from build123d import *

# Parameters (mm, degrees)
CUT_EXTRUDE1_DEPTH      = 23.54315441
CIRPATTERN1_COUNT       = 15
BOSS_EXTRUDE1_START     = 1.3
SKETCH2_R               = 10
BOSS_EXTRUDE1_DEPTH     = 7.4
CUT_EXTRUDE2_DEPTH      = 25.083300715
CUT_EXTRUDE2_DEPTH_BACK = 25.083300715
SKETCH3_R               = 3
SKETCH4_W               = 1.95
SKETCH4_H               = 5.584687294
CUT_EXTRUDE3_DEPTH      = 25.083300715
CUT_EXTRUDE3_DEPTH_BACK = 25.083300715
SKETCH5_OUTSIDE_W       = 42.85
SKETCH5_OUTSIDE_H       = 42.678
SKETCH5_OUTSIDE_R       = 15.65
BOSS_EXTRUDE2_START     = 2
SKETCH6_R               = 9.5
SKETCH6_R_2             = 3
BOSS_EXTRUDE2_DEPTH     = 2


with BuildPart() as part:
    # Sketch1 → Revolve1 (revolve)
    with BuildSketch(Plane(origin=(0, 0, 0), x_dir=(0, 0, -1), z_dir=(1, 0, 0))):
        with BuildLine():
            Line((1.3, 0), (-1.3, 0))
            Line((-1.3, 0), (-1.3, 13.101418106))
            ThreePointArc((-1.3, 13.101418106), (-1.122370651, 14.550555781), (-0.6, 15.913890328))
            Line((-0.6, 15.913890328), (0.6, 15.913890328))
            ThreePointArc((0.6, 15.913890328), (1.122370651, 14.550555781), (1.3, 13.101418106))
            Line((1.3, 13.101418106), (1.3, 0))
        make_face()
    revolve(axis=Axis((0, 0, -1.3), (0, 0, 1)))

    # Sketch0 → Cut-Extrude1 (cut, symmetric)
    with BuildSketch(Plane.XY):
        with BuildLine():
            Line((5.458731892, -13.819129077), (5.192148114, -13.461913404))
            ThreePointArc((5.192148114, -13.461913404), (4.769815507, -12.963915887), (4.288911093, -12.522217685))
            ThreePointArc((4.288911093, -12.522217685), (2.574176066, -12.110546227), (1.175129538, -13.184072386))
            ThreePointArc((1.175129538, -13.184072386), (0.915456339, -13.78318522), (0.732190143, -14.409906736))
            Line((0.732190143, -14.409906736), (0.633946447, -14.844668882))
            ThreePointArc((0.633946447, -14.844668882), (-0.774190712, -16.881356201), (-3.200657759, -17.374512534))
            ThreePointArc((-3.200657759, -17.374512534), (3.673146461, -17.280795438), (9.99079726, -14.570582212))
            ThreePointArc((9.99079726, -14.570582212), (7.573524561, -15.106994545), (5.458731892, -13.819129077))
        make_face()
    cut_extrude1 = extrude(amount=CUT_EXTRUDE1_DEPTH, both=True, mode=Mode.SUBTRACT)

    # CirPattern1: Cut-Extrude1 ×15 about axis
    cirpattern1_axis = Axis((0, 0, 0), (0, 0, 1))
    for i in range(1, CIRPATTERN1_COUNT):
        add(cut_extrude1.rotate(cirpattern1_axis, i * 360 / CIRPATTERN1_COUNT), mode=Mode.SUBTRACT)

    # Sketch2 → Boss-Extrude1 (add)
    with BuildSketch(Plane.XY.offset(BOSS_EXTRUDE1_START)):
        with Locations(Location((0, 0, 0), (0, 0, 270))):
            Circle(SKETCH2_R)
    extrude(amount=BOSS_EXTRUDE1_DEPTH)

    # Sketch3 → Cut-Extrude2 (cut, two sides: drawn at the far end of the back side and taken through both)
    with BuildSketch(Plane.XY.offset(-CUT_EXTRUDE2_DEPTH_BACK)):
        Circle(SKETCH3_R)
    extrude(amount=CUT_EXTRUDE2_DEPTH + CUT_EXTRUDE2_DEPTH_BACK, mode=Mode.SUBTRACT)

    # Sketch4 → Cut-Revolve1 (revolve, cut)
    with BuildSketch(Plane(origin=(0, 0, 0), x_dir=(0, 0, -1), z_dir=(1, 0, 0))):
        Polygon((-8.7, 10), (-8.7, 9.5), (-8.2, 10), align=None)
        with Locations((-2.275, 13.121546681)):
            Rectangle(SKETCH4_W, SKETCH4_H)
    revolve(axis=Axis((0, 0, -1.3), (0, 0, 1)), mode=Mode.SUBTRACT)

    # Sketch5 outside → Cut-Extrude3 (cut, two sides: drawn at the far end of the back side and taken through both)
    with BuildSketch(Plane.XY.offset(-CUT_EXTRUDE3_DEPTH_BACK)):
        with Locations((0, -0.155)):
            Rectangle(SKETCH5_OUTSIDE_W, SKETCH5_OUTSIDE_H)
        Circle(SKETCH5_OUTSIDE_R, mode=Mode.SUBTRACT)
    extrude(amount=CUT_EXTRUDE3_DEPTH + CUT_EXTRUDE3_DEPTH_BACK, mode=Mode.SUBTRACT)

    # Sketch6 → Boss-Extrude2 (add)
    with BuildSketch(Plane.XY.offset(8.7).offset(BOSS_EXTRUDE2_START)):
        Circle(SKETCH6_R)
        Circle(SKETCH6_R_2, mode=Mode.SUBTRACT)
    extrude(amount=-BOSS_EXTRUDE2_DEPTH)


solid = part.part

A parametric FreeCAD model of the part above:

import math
import FreeCAD as App
import Part
import Sketcher
Q = App.Units.Quantity

doc = App.newDocument("Part")
params = doc.addObject("Spreadsheet::Sheet", "Params")
for row, (alias, value) in enumerate([
    ("sketch1_radius", "6 mm"),
    ("sketch1_height", "2.6 mm"),
    ("sketch1_height2", "1.2 mm"),
    ("revolution_angle", "360 deg"),
    ("pocket1_length", "47.086309 mm"),
    ("sketch3_diameter", "20 mm"),
    ("pad1_length", "7.4 mm"),
    ("sketch4_diameter", "6 mm"),
    ("sketch5_width", "0.5 mm"),
    ("sketch5_height", "1.95 mm"),
    ("groove_angle", "360 deg"),
    ("sketch6_diameter", "31.3 mm"),
    ("sketch6_width", "42.85 mm"),
    ("sketch7_diameter", "19 mm"),
    ("sketch7_diameter2", "6 mm"),
    ("pad2_length", "2 mm"),
], start=1):
    params.set(f"A{row}", alias)
    params.set(f"B{row}", "=" + value)
    params.setAlias(f"B{row}", alias)

body = doc.addObject("PartDesign::Body", "Body")

# Sketch on YZ plane
sketch1 = body.newObject("Sketcher::SketchObject", "Sketch")
sketch1.AttachmentSupport = (doc.getObject("YZ_Plane"), [""])
sketch1.MapMode = "FlatFace"
sketch1.addGeometry(Part.LineSegment(App.Vector(0, 1.3, 0), App.Vector(0, -1.3, 0)), False)
sketch1.addGeometry(Part.LineSegment(App.Vector(0, -1.3, 0), App.Vector(13.101418, -1.3, 0)), False)
sketch1.addGeometry(Part.ArcOfCircle(Part.Circle(App.Vector(13.101418, 4.7, 0), App.Vector(0, 0, 1), 6), math.radians(-90), math.radians(-62.047113)), False)
sketch1.addGeometry(Part.LineSegment(App.Vector(15.91389, -0.6, 0), App.Vector(15.91389, 0.6, 0)), False)
sketch1.addGeometry(Part.ArcOfCircle(Part.Circle(App.Vector(13.101418, -4.7, 0), App.Vector(0, 0, 1), 6), math.radians(62.047113), math.radians(90)), False)
sketch1.addGeometry(Part.LineSegment(App.Vector(13.101418, 1.3, 0), App.Vector(0, 1.3, 0)), False)
sketch1.addConstraint(Sketcher.Constraint("Coincident", 0, 2, 1, 1))
sketch1.addConstraint(Sketcher.Constraint("Tangent", 1, 2, 2, 1))
sketch1.addConstraint(Sketcher.Constraint("Coincident", 2, 2, 3, 1))
sketch1.addConstraint(Sketcher.Constraint("Coincident", 3, 2, 4, 1))
sketch1.addConstraint(Sketcher.Constraint("Tangent", 4, 2, 5, 1))
sketch1.addConstraint(Sketcher.Constraint("Coincident", 5, 2, 0, 1))
sketch1.addConstraint(Sketcher.Constraint("Vertical", 0))
sketch1.addConstraint(Sketcher.Constraint("Horizontal", 1))
sketch1.addConstraint(Sketcher.Constraint("Vertical", 3))
sketch1.addConstraint(Sketcher.Constraint("Horizontal", 5))
sketch1.addConstraint(Sketcher.Constraint("Equal", 2, 4))
sketch1.addConstraint(Sketcher.Constraint("Symmetric", 0, 2, 5, 2, -1, 1))
sketch1.addConstraint(Sketcher.Constraint("Vertical", 2, 3, 4, 3))
sketch1.addConstraint(Sketcher.Constraint("Radius", 2, Q("6 mm")))
sketch1.addConstraint(Sketcher.Constraint("DistanceY", 0, 2, 0, 1, Q("2.6 mm")))
sketch1.addConstraint(Sketcher.Constraint("DistanceY", 3, 1, 3, 2, Q("1.2 mm")))
sketch1.addConstraint(Sketcher.Constraint("DistanceX", 1, 1, 1, 2, Q("13.101418 mm")))
sketch1.setExpression("Constraints[13]", "Params.sketch1_radius")
sketch1.setExpression("Constraints[14]", "Params.sketch1_height")
sketch1.setExpression("Constraints[15]", "Params.sketch1_height2")
revolution = body.newObject("PartDesign::Revolution", "Revolution")
revolution.Profile = sketch1
revolution.ReferenceAxis = (sketch1, ["V_Axis"])
revolution.setExpression("Angle", "Params.revolution_angle")

# Sketch on XY plane
sketch2 = body.newObject("Sketcher::SketchObject", "Sketch001")
sketch2.AttachmentSupport = (doc.getObject("XY_Plane"), [""])
sketch2.MapMode = "FlatFace"
sketch2.addGeometry(Part.LineSegment(App.Vector(5.458732, -13.819129, 0), App.Vector(5.192148, -13.461913, 0)), False)
sketch2.addGeometry(Part.ArcOfCircle(Part.Circle(App.Vector(0.986175, -16.600757, 0), App.Vector(0, 0, 1), 5.2481), math.radians(36.733333), math.radians(51)), False)
sketch2.addGeometry(Part.ArcOfCircle(Part.Circle(App.Vector(3, -14.11389, 0), App.Vector(0, 0, 1), 2.0481), math.radians(51), math.radians(153)), False)
sketch2.addGeometry(Part.ArcOfCircle(Part.Circle(App.Vector(5.851221, -15.56666, 0), App.Vector(0, 0, 1), 5.2481), math.radians(153), math.radians(167.266667)), False)
sketch2.addGeometry(Part.LineSegment(App.Vector(0.73219, -14.409907, 0), App.Vector(0.633946, -14.844669, 0)), False)
sketch2.addGeometry(Part.ArcOfCircle(Part.Circle(App.Vector(-2.6, -14.11389, 0), App.Vector(0, 0, 1), 3.315486), math.radians(-100.437761), math.radians(-12.733333)), False)
sketch2.addGeometry(Part.ArcOfCircle(Part.Circle(App.Vector(0, 0, 0), App.Vector(0, 0, 1), 17.666859), math.radians(-100.437761), math.radians(-55.562239)), False)
sketch2.addGeometry(Part.ArcOfCircle(Part.Circle(App.Vector(8.115855, -11.836165, 0), App.Vector(0, 0, 1), 3.315486), math.radians(-143.266667), math.radians(-55.562239)), False)
sketch2.addConstraint(Sketcher.Constraint("Tangent", 0, 2, 1, 1))
sketch2.addConstraint(Sketcher.Constraint("Tangent", 1, 2, 2, 1))
sketch2.addConstraint(Sketcher.Constraint("Tangent", 2, 2, 3, 1))
sketch2.addConstraint(Sketcher.Constraint("Tangent", 3, 2, 4, 1))
sketch2.addConstraint(Sketcher.Constraint("Tangent", 4, 2, 5, 2))
sketch2.addConstraint(Sketcher.Constraint("Tangent", 5, 1, 6, 1))
sketch2.addConstraint(Sketcher.Constraint("Tangent", 6, 2, 7, 2))
sketch2.addConstraint(Sketcher.Constraint("Tangent", 7, 1, 0, 1))
sketch2.addConstraint(Sketcher.Constraint("Coincident", 6, 3, -1, 1))
sketch2.addConstraint(Sketcher.Constraint("Equal", 1, 3))
sketch2.addConstraint(Sketcher.Constraint("Equal", 5, 7))
sketch2.addConstraint(Sketcher.Constraint("Horizontal", 2, 3, 5, 3))
sketch2.addConstraint(Sketcher.Constraint("Equal", 0, 4))
sketch2.addConstraint(Sketcher.Constraint("DistanceX", -1, 1, 2, 3, Q("3 mm")))
sketch2.addConstraint(Sketcher.Constraint("DistanceX", 5, 3, -1, 1, Q("2.6 mm")))
sketch2.addConstraint(Sketcher.Constraint("Radius", 1, Q("5.2481 mm")))
sketch2.addConstraint(Sketcher.Constraint("Radius", 2, Q("2.0481 mm")))
sketch2.addConstraint(Sketcher.Constraint("Radius", 6, Q("17.666859 mm")))
sketch2.addConstraint(Sketcher.Constraint("Radius", 5, Q("3.315486 mm")))
sketch2.addConstraint(Sketcher.Constraint("DistanceX", -1, 1, 3, 3, Q("5.851221 mm")))
sketch2.addConstraint(Sketcher.Constraint("DistanceX", -1, 1, 0, 2, Q("5.192148 mm")))
pocket1 = body.newObject("PartDesign::Pocket", "Pocket")
pocket1.Profile = sketch2
pocket1.setExpression("Length", "Params.pocket1_length")
pocket1.Midplane = True
doc.recompute()

polarpattern = body.newObject("PartDesign::PolarPattern", "PolarPattern")
polarpattern.Originals = [pocket1]
polarpattern.Axis = (doc.getObject("Z_Axis"), [""])
polarpattern.Angle = 360
polarpattern.Occurrences = 15
body.Tip = polarpattern

# Sketch on XY plane
sketch3 = body.newObject("Sketcher::SketchObject", "Sketch002")
sketch3.AttachmentSupport = (doc.getObject("XY_Plane"), [""])
sketch3.MapMode = "FlatFace"
sketch3.AttachmentOffset = App.Placement(App.Vector(0, 0, 1.3), App.Rotation())
sketch3.addGeometry(Part.Circle(App.Vector(0, 0, 0), App.Vector(0, 0, 1), 10), False)
sketch3.addConstraint(Sketcher.Constraint("Coincident", 0, 3, -1, 1))
sketch3.addConstraint(Sketcher.Constraint("Diameter", 0, Q("20 mm")))
sketch3.setExpression("Constraints[1]", "Params.sketch3_diameter")
pad1 = body.newObject("PartDesign::Pad", "Pad")
pad1.Profile = sketch3
pad1.setExpression("Length", "Params.pad1_length")

# Sketch on XY plane
sketch4 = body.newObject("Sketcher::SketchObject", "Sketch003")
sketch4.AttachmentSupport = (doc.getObject("XY_Plane"), [""])
sketch4.MapMode = "FlatFace"
sketch4.addGeometry(Part.Circle(App.Vector(0, 0, 0), App.Vector(0, 0, 1), 3), False)
sketch4.addConstraint(Sketcher.Constraint("Coincident", 0, 3, -1, 1))
sketch4.addConstraint(Sketcher.Constraint("Diameter", 0, Q("6 mm")))
sketch4.setExpression("Constraints[1]", "Params.sketch4_diameter")
pocket2 = body.newObject("PartDesign::Pocket", "Pocket001")
pocket2.Profile = sketch4
pocket2.Type = "ThroughAll"
pocket2.Midplane = True

# Sketch on YZ plane
sketch5 = body.newObject("Sketcher::SketchObject", "Sketch004")
sketch5.AttachmentSupport = (doc.getObject("YZ_Plane"), [""])
sketch5.MapMode = "FlatFace"
sketch5.addGeometry(Part.LineSegment(App.Vector(10, 8.7, 0), App.Vector(9.5, 8.7, 0)), False)
sketch5.addGeometry(Part.LineSegment(App.Vector(9.5, 8.7, 0), App.Vector(10, 8.2, 0)), False)
sketch5.addGeometry(Part.LineSegment(App.Vector(10, 8.2, 0), App.Vector(10, 8.7, 0)), False)
sketch5.addGeometry(Part.LineSegment(App.Vector(15.91389, 3.25, 0), App.Vector(10.329203, 3.25, 0)), False)
sketch5.addGeometry(Part.LineSegment(App.Vector(10.329203, 3.25, 0), App.Vector(10.329203, 1.3, 0)), False)
sketch5.addGeometry(Part.LineSegment(App.Vector(10.329203, 1.3, 0), App.Vector(15.91389, 1.3, 0)), False)
sketch5.addGeometry(Part.LineSegment(App.Vector(15.91389, 1.3, 0), App.Vector(15.91389, 3.25, 0)), False)
sketch5.addConstraint(Sketcher.Constraint("Coincident", 0, 2, 1, 1))
sketch5.addConstraint(Sketcher.Constraint("Coincident", 1, 2, 2, 1))
sketch5.addConstraint(Sketcher.Constraint("Coincident", 2, 2, 0, 1))
sketch5.addConstraint(Sketcher.Constraint("Coincident", 3, 2, 4, 1))
sketch5.addConstraint(Sketcher.Constraint("Coincident", 4, 2, 5, 1))
sketch5.addConstraint(Sketcher.Constraint("Coincident", 5, 2, 6, 1))
sketch5.addConstraint(Sketcher.Constraint("Coincident", 6, 2, 3, 1))
sketch5.addConstraint(Sketcher.Constraint("Horizontal", 0))
sketch5.addConstraint(Sketcher.Constraint("Vertical", 2))
sketch5.addConstraint(Sketcher.Constraint("Horizontal", 3))
sketch5.addConstraint(Sketcher.Constraint("Vertical", 4))
sketch5.addConstraint(Sketcher.Constraint("Horizontal", 5))
sketch5.addConstraint(Sketcher.Constraint("Vertical", 6))
sketch5.addConstraint(Sketcher.Constraint("Equal", 0, 2))
sketch5.addConstraint(Sketcher.Constraint("DistanceX", 0, 2, 0, 1, Q("0.5 mm")))
sketch5.addConstraint(Sketcher.Constraint("DistanceX", -1, 1, 1, 2, Q("10 mm")))
sketch5.addConstraint(Sketcher.Constraint("DistanceY", 4, 2, 4, 1, Q("1.95 mm")))
sketch5.addConstraint(Sketcher.Constraint("DistanceY", -1, 1, 0, 2, Q("8.7 mm")))
sketch5.addConstraint(Sketcher.Constraint("DistanceY", -1, 1, 4, 2, Q("1.3 mm")))
sketch5.addConstraint(Sketcher.Constraint("DistanceX", 3, 2, 3, 1, Q("5.584687 mm")))
sketch5.addConstraint(Sketcher.Constraint("DistanceX", -1, 1, 5, 2, Q("15.91389 mm")))
sketch5.setExpression("Constraints[14]", "Params.sketch5_width")
sketch5.setExpression("Constraints[16]", "Params.sketch5_height")
groove = body.newObject("PartDesign::Groove", "Groove")
groove.Profile = sketch5
groove.ReferenceAxis = (sketch5, ["V_Axis"])
groove.setExpression("Angle", "Params.groove_angle")

# Sketch on XY plane
sketch6 = body.newObject("Sketcher::SketchObject", "Sketch005")
sketch6.AttachmentSupport = (doc.getObject("XY_Plane"), [""])
sketch6.MapMode = "FlatFace"
sketch6.addGeometry(Part.LineSegment(App.Vector(-21.425, 21.184, 0), App.Vector(-21.425, -21.494, 0)), False)
sketch6.addGeometry(Part.LineSegment(App.Vector(-21.425, -21.494, 0), App.Vector(21.425, -21.494, 0)), False)
sketch6.addGeometry(Part.LineSegment(App.Vector(21.425, -21.494, 0), App.Vector(21.425, 21.184, 0)), False)
sketch6.addGeometry(Part.LineSegment(App.Vector(21.425, 21.184, 0), App.Vector(-21.425, 21.184, 0)), False)
sketch6.addGeometry(Part.Circle(App.Vector(0, 0, 0), App.Vector(0, 0, 1), 15.65), False)
sketch6.addConstraint(Sketcher.Constraint("Coincident", 0, 2, 1, 1))
sketch6.addConstraint(Sketcher.Constraint("Coincident", 1, 2, 2, 1))
sketch6.addConstraint(Sketcher.Constraint("Coincident", 2, 2, 3, 1))
sketch6.addConstraint(Sketcher.Constraint("Coincident", 3, 2, 0, 1))
sketch6.addConstraint(Sketcher.Constraint("Vertical", 0))
sketch6.addConstraint(Sketcher.Constraint("Horizontal", 1))
sketch6.addConstraint(Sketcher.Constraint("Vertical", 2))
sketch6.addConstraint(Sketcher.Constraint("Horizontal", 3))
sketch6.addConstraint(Sketcher.Constraint("Coincident", 4, 3, -1, 1))
sketch6.addConstraint(Sketcher.Constraint("Diameter", 4, Q("31.3 mm")))
sketch6.addConstraint(Sketcher.Constraint("DistanceX", 1, 1, 1, 2, Q("42.85 mm")))
sketch6.addConstraint(Sketcher.Constraint("DistanceY", 0, 2, 0, 1, Q("42.678 mm")))
sketch6.addConstraint(Sketcher.Constraint("DistanceX", 0, 2, -1, 1, Q("21.425 mm")))
sketch6.addConstraint(Sketcher.Constraint("DistanceY", 0, 2, -1, 1, Q("21.494 mm")))
sketch6.setExpression("Constraints[9]", "Params.sketch6_diameter")
sketch6.setExpression("Constraints[10]", "Params.sketch6_width")
pocket3 = body.newObject("PartDesign::Pocket", "Pocket002")
pocket3.Profile = sketch6
pocket3.Type = "ThroughAll"
pocket3.Midplane = True

# Sketch on XY plane
sketch7 = body.newObject("Sketcher::SketchObject", "Sketch006")
sketch7.AttachmentSupport = (doc.getObject("XY_Plane"), [""])
sketch7.MapMode = "FlatFace"
sketch7.AttachmentOffset = App.Placement(App.Vector(0, 0, 10.7), App.Rotation())
sketch7.addGeometry(Part.Circle(App.Vector(0, 0, 0), App.Vector(0, 0, 1), 9.5), False)
sketch7.addGeometry(Part.Circle(App.Vector(0, 0, 0), App.Vector(0, 0, 1), 3), False)
sketch7.addConstraint(Sketcher.Constraint("Coincident", 0, 3, -1, 1))
sketch7.addConstraint(Sketcher.Constraint("Coincident", 1, 3, -1, 1))
sketch7.addConstraint(Sketcher.Constraint("Diameter", 0, Q("19 mm")))
sketch7.addConstraint(Sketcher.Constraint("Diameter", 1, Q("6 mm")))
sketch7.setExpression("Constraints[2]", "Params.sketch7_diameter")
sketch7.setExpression("Constraints[3]", "Params.sketch7_diameter2")
pad2 = body.newObject("PartDesign::Pad", "Pad001")
pad2.Profile = sketch7
pad2.setExpression("Length", "Params.pad2_length")
pad2.Reversed = True

doc.recompute()
